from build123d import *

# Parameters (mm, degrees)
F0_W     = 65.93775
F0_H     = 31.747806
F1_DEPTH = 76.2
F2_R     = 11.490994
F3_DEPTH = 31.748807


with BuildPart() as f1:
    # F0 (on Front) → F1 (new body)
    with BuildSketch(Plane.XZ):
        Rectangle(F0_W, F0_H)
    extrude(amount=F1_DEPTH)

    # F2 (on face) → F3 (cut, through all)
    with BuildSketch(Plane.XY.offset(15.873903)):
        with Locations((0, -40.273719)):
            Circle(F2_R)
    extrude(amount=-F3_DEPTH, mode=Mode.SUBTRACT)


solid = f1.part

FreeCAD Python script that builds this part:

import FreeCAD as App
import Part
import Sketcher
from FreeCAD import Vector
Q = App.Units.Quantity

doc = App.newDocument("Part")
body = doc.addObject("PartDesign::Body", "Body")

# Sketch on XZ plane
sketch1 = body.newObject("Sketcher::SketchObject", "Sketch")
sketch1.AttachmentSupport = (doc.getObject("XZ_Plane"), [""])
sketch1.MapMode = "FlatFace"
sketch1.addGeometry([
    Part.LineSegment(Vector(-33, 16, 0), Vector(-33, -16, 0)),
    Part.LineSegment(Vector(-33, -16, 0), Vector(33, -16, 0)),
    Part.LineSegment(Vector(33, -16, 0), Vector(33, 16, 0)),
    Part.LineSegment(Vector(33, 16, 0), Vector(-33, 16, 0)),
], False)
sketch1.addConstraint([
    Sketcher.Constraint("Coincident", 0, 2, 1, 1),
    Sketcher.Constraint("Coincident", 1, 2, 2, 1),
    Sketcher.Constraint("Coincident", 2, 2, 3, 1),
    Sketcher.Constraint("Coincident", 3, 2, 0, 1),
    Sketcher.Constraint("Vertical", 0),
    Sketcher.Constraint("Horizontal", 1),
    Sketcher.Constraint("Vertical", 2),
    Sketcher.Constraint("Horizontal", 3),
    Sketcher.Constraint("Symmetric", 0, 2, 2, 2, -1, 1),
    Sketcher.Constraint("DistanceX", 1, 1, 1, 2, Q("65.93775 mm")),
    Sketcher.Constraint("DistanceY", 0, 2, 0, 1, Q("31.747806 mm")),
])
pad1 = body.newObject("PartDesign::Pad", "Pad")
pad1.Profile = sketch1
pad1.Length = Q("3 in")

# Sketch on XY plane
sketch2 = body.newObject("Sketcher::SketchObject", "Sketch001")
sketch2.AttachmentSupport = (doc.getObject("XY_Plane"), [""])
sketch2.MapMode = "FlatFace"
sketch2.AttachmentOffset = App.Placement(Vector(0, 0, 15.873903), App.Rotation())
sketch2.addGeometry(Part.Circle(Vector(0, -40, 0), Vector(0, 0, 1), 11), False)
sketch2.addConstraint([
    Sketcher.Constraint("PointOnObject", 0, 3, -2),
    Sketcher.Constraint("Diameter", 0, Q("22.981988 mm")),
    Sketcher.Constraint("DistanceY", 0, 3, -1, 1, Q("40.273719 mm")),
])
pocket1 = body.newObject("PartDesign::Pocket", "Pocket")
pocket1.Profile = sketch2
pocket1.Type = "ThroughAll"

doc.recompute()
